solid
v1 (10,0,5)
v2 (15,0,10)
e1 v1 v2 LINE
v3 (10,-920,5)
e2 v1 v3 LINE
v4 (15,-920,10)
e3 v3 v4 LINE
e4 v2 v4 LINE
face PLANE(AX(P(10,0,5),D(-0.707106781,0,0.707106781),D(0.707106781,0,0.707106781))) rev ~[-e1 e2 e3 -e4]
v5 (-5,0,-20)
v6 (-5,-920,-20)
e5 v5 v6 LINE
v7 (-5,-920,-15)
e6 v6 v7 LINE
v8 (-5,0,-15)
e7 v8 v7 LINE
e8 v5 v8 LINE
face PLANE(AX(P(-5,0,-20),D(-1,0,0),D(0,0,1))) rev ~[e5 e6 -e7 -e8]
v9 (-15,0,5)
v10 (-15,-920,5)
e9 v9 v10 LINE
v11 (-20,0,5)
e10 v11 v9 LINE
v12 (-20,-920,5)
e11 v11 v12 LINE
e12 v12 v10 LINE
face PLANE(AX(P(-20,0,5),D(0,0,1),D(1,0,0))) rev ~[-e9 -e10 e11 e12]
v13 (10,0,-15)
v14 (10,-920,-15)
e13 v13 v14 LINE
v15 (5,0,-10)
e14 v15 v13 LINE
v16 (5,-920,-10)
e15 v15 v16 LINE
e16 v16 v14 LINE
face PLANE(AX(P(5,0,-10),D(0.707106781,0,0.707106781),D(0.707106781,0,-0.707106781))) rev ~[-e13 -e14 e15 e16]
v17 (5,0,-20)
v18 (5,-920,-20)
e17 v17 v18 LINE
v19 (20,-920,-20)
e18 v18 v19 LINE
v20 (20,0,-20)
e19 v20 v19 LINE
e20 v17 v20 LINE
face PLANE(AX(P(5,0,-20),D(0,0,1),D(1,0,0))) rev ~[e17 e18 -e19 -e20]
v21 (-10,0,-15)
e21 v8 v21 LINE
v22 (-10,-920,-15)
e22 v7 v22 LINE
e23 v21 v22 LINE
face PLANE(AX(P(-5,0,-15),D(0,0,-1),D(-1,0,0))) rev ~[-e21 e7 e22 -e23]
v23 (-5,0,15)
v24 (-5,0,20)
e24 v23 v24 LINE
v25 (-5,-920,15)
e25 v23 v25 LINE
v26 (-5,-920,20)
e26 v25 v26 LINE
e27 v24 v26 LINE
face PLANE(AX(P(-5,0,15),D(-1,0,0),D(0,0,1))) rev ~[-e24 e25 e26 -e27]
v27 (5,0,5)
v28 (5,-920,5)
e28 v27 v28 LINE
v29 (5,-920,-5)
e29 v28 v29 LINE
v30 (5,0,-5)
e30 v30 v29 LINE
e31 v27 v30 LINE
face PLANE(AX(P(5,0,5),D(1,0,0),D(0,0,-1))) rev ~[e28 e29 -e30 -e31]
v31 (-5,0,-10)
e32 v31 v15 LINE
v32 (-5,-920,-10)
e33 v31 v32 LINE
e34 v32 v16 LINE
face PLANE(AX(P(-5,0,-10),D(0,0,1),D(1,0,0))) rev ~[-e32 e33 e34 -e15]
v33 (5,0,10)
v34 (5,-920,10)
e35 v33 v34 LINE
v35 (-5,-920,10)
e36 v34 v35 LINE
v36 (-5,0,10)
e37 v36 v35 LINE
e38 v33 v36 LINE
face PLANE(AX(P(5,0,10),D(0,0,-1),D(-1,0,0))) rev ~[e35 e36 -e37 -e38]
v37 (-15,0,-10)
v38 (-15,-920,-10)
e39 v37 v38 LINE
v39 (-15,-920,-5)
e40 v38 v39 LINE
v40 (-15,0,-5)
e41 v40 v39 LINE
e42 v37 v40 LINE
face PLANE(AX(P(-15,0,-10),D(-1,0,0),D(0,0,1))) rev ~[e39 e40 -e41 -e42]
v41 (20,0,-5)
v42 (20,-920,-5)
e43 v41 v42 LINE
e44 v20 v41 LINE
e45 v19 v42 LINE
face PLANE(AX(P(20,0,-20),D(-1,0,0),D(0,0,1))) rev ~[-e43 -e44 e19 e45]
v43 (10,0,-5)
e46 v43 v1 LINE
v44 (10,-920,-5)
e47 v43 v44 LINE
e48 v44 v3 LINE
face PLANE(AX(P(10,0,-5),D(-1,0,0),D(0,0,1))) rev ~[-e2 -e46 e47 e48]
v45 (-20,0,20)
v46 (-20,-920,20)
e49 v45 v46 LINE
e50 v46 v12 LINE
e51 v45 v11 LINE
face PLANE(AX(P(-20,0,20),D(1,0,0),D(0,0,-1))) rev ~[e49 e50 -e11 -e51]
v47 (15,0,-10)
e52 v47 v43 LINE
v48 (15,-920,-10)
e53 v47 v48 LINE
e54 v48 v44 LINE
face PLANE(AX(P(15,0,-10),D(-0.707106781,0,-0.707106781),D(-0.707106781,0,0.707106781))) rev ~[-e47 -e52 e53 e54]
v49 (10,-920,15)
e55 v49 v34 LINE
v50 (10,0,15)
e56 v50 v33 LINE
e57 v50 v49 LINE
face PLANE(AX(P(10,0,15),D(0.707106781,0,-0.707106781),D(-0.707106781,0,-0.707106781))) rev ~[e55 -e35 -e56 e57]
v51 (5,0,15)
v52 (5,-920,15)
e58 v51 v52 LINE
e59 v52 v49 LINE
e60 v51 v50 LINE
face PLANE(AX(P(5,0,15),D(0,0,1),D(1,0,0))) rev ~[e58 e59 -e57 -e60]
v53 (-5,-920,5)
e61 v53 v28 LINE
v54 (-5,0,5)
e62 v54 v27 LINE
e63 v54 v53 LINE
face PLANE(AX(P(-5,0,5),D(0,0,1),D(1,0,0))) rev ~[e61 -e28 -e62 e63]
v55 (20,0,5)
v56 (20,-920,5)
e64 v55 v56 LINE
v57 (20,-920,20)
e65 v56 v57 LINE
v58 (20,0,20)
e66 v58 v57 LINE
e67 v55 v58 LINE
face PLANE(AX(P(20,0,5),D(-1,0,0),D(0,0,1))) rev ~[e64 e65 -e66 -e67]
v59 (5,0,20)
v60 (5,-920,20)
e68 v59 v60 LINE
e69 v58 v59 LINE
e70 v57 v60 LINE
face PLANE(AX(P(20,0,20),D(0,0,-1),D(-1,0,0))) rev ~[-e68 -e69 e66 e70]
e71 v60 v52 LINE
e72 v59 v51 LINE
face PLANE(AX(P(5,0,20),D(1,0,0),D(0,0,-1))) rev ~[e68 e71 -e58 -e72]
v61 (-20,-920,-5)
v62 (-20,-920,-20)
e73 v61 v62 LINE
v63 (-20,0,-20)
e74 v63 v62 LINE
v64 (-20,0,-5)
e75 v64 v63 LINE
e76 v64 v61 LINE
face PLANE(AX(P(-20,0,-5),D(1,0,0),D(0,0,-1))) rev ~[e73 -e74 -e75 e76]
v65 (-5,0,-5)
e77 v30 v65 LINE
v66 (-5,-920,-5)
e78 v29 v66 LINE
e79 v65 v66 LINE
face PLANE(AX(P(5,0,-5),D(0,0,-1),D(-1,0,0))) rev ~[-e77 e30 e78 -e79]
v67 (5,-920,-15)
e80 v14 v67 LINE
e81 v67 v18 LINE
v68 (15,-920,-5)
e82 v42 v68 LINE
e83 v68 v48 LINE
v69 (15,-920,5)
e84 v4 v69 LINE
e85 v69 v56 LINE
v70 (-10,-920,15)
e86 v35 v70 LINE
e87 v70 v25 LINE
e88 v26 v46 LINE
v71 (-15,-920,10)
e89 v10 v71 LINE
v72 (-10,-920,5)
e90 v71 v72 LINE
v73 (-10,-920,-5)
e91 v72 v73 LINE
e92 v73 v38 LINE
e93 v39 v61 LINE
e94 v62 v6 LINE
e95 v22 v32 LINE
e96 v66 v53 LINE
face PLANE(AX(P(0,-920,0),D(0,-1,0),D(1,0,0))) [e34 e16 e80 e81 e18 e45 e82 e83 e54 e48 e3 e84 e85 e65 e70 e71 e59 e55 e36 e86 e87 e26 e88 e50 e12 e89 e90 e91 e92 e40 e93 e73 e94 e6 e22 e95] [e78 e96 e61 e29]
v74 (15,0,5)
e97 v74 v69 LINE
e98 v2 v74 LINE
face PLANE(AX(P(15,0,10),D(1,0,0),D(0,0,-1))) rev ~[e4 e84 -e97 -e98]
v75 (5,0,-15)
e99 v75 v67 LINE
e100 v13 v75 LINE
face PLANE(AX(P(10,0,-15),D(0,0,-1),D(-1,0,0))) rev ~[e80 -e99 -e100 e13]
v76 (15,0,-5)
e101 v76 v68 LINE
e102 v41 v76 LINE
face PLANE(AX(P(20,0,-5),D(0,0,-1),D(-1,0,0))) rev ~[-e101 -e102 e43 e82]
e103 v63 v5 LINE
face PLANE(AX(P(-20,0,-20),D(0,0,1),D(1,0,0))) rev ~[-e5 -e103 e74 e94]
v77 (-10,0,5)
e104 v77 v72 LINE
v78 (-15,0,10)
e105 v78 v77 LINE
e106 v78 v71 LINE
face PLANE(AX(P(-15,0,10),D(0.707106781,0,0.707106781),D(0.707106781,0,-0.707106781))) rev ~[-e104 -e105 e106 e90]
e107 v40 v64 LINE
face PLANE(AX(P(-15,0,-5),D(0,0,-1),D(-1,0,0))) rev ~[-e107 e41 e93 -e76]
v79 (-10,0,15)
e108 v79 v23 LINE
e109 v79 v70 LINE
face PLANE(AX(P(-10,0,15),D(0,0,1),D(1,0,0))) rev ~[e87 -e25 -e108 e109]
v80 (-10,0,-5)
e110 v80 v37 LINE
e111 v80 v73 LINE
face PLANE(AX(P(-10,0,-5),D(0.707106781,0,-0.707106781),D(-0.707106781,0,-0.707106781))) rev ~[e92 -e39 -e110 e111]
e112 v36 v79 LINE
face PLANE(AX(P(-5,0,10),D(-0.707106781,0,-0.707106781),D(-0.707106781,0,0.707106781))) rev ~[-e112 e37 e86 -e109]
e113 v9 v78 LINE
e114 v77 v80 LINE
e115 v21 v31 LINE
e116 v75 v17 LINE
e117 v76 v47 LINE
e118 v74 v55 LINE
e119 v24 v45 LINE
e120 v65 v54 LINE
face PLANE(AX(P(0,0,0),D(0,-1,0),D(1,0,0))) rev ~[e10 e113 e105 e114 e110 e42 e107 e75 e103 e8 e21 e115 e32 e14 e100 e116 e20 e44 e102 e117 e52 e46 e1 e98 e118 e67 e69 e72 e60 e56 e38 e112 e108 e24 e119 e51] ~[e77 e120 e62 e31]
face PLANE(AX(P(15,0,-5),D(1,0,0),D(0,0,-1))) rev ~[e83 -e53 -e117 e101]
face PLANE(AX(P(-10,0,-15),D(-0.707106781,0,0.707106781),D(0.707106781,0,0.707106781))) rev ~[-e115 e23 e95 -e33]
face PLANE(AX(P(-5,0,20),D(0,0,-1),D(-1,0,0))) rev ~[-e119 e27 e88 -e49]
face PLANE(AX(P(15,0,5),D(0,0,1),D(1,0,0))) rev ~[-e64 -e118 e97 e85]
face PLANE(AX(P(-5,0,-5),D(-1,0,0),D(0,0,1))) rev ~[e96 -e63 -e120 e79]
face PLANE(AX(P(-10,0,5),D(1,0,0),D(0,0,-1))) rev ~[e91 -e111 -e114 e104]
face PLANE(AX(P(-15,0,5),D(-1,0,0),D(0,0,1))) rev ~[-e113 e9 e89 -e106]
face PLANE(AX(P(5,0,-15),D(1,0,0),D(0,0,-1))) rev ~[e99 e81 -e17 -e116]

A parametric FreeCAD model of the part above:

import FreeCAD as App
import Part
import Sketcher
Q = App.Units.Quantity


def add_polygon(sketch, points):
    """Adds a closed chain of lines whose ends are joined by coincident constraints."""
    first, n = sketch.GeometryCount, len(points)
    for a, b in zip(points, points[1:] + points[:1]):
        sketch.addGeometry(Part.LineSegment(App.Vector(*a, 0), App.Vector(*b, 0)), False)
    for i in range(n):
        sketch.addConstraint(Sketcher.Constraint("Coincident", first + i, 2, first + (i + 1) % n, 1))

doc = App.newDocument("Part")
body = doc.addObject("PartDesign::Body", "Body")

# Sketch on XZ plane
sketch1 = body.newObject("Sketcher::SketchObject", "Sketch")
sketch1.AttachmentSupport = (doc.getObject("XZ_Plane"), [""])
sketch1.MapMode = "FlatFace"
add_polygon(sketch1, [(20, 5), (20, 20), (5, 20), (5, 15), (10, 15), (5, 10), (-5, 10), (-10, 15), (-5, 15), (-5, 20), (-20, 20), (-20, 5), (-15, 5), (-15, 10), (-10, 5), (-10, -5), (-15, -10), (-15, -5), (-20, -5), (-20, -20), (-5, -20), (-5, -15), (-10, -15), (-5, -10), (5, -10), (10, -15), (5, -15), (5, -20), (20, -20), (20, -5), (15, -5), (15, -10), (10, -5), (10, 5), (15, 10), (15, 5)])  # lines 0-35
add_polygon(sketch1, [(-5, -5), (-5, 5), (5, 5), (5, -5)])  # lines 36-39
sketch1.addConstraint(Sketcher.Constraint("Vertical", 0))
sketch1.addConstraint(Sketcher.Constraint("Horizontal", 1))
sketch1.addConstraint(Sketcher.Constraint("Vertical", 2))
sketch1.addConstraint(Sketcher.Constraint("Horizontal", 3))
sketch1.addConstraint(Sketcher.Constraint("Horizontal", 5))
sketch1.addConstraint(Sketcher.Constraint("Horizontal", 7))
sketch1.addConstraint(Sketcher.Constraint("Vertical", 8))
sketch1.addConstraint(Sketcher.Constraint("Horizontal", 9))
sketch1.addConstraint(Sketcher.Constraint("Vertical", 10))
sketch1.addConstraint(Sketcher.Constraint("Horizontal", 11))
sketch1.addConstraint(Sketcher.Constraint("Vertical", 12))
sketch1.addConstraint(Sketcher.Constraint("Vertical", 14))
sketch1.addConstraint(Sketcher.Constraint("Vertical", 16))
sketch1.addConstraint(Sketcher.Constraint("Horizontal", 17))
sketch1.addConstraint(Sketcher.Constraint("Vertical", 18))
sketch1.addConstraint(Sketcher.Constraint("Horizontal", 19))
sketch1.addConstraint(Sketcher.Constraint("Vertical", 20))
sketch1.addConstraint(Sketcher.Constraint("Horizontal", 21))
sketch1.addConstraint(Sketcher.Constraint("Horizontal", 23))
sketch1.addConstraint(Sketcher.Constraint("Horizontal", 25))
sketch1.addConstraint(Sketcher.Constraint("Vertical", 26))
sketch1.addConstraint(Sketcher.Constraint("Horizontal", 27))
sketch1.addConstraint(Sketcher.Constraint("Vertical", 28))
sketch1.addConstraint(Sketcher.Constraint("Horizontal", 29))
sketch1.addConstraint(Sketcher.Constraint("Vertical", 30))
sketch1.addConstraint(Sketcher.Constraint("Vertical", 32))
sketch1.addConstraint(Sketcher.Constraint("Vertical", 34))
sketch1.addConstraint(Sketcher.Constraint("Horizontal", 35))
sketch1.addConstraint(Sketcher.Constraint("Vertical", 36))
sketch1.addConstraint(Sketcher.Constraint("Horizontal", 37))
sketch1.addConstraint(Sketcher.Constraint("Vertical", 38))
sketch1.addConstraint(Sketcher.Constraint("Horizontal", 39))
sketch1.addConstraint(Sketcher.Constraint("Symmetric", 0, 2, 18, 2, -1, 1))
sketch1.addConstraint(Sketcher.Constraint("Symmetric", 2, 2, 20, 2, -1, 1))
sketch1.addConstraint(Sketcher.Constraint("Symmetric", 4, 2, 22, 2, -1, 1))
sketch1.addConstraint(Sketcher.Constraint("Symmetric", 6, 2, 24, 2, -1, 1))
sketch1.addConstraint(Sketcher.Constraint("Symmetric", 8, 2, 26, 2, -1, 1))
sketch1.addConstraint(Sketcher.Constraint("Symmetric", 10, 2, 28, 2, -1, 1))
sketch1.addConstraint(Sketcher.Constraint("Symmetric", 12, 2, 30, 2, -1, 1))
sketch1.addConstraint(Sketcher.Constraint("Symmetric", 13, 2, 31, 2, -1, 1))
sketch1.addConstraint(Sketcher.Constraint("Symmetric", 15, 2, 33, 2, -1, 1))
sketch1.addConstraint(Sketcher.Constraint("Symmetric", 36, 2, 38, 2, -1, 1))
sketch1.addConstraint(Sketcher.Constraint("Symmetric", 3, 2, 6, 2, -2))
sketch1.addConstraint(Sketcher.Constraint("Symmetric", 1, 2, 8, 2, -2))
sketch1.addConstraint(Sketcher.Constraint("Symmetric", 17, 2, 28, 2, -2))
sketch1.addConstraint(Sketcher.Constraint("Symmetric", 15, 2, 30, 2, -2))
sketch1.addConstraint(Sketcher.Constraint("Perpendicular", 4, 6))
sketch1.addConstraint(Sketcher.Constraint("Parallel", 6, 13))
sketch1.addConstraint(Sketcher.Constraint("Perpendicular", 13, 15))
sketch1.addConstraint(Sketcher.Constraint("Parallel", 15, 22))
sketch1.addConstraint(Sketcher.Constraint("Perpendicular", 22, 24))
sketch1.addConstraint(Sketcher.Constraint("Perpendicular", 31, 33))
sketch1.addConstraint(Sketcher.Constraint("Horizontal", 5, 2, 12, 2))
sketch1.addConstraint(Sketcher.Constraint("Horizontal", 11, 2, 13, 2))
sketch1.addConstraint(Sketcher.Constraint("Horizontal", 14, 2, 16, 2))
sketch1.addConstraint(Sketcher.Constraint("Horizontal", 32, 2, 34, 2))
sketch1.addConstraint(Sketcher.Constraint("Horizontal", 35, 2, 36, 2))
sketch1.addConstraint(Sketcher.Constraint("Vertical", 2, 2, 4, 2))
sketch1.addConstraint(Sketcher.Constraint("Vertical", 6, 2, 13, 2))
sketch1.addConstraint(Sketcher.Constraint("Vertical", 22, 2, 36, 2))
sketch1.addConstraint(Sketcher.Constraint("Equal", 7, 11))
sketch1.addConstraint(Sketcher.Constraint("Equal", 27, 0))
sketch1.addConstraint(Sketcher.Constraint("Equal", 8, 12))
sketch1.addConstraint(Sketcher.Constraint("Equal", 39, 14))
sketch1.addConstraint(Sketcher.Constraint("DistanceX", 1, 2, 1, 1, Q("15 mm")))
sketch1.addConstraint(Sketcher.Constraint("DistanceX", 5, 2, 5, 1, Q("10 mm")))
pad1 = body.newObject("PartDesign::Pad", "Pad")
pad1.Profile = sketch1
pad1.Length = 920

doc.recompute()
